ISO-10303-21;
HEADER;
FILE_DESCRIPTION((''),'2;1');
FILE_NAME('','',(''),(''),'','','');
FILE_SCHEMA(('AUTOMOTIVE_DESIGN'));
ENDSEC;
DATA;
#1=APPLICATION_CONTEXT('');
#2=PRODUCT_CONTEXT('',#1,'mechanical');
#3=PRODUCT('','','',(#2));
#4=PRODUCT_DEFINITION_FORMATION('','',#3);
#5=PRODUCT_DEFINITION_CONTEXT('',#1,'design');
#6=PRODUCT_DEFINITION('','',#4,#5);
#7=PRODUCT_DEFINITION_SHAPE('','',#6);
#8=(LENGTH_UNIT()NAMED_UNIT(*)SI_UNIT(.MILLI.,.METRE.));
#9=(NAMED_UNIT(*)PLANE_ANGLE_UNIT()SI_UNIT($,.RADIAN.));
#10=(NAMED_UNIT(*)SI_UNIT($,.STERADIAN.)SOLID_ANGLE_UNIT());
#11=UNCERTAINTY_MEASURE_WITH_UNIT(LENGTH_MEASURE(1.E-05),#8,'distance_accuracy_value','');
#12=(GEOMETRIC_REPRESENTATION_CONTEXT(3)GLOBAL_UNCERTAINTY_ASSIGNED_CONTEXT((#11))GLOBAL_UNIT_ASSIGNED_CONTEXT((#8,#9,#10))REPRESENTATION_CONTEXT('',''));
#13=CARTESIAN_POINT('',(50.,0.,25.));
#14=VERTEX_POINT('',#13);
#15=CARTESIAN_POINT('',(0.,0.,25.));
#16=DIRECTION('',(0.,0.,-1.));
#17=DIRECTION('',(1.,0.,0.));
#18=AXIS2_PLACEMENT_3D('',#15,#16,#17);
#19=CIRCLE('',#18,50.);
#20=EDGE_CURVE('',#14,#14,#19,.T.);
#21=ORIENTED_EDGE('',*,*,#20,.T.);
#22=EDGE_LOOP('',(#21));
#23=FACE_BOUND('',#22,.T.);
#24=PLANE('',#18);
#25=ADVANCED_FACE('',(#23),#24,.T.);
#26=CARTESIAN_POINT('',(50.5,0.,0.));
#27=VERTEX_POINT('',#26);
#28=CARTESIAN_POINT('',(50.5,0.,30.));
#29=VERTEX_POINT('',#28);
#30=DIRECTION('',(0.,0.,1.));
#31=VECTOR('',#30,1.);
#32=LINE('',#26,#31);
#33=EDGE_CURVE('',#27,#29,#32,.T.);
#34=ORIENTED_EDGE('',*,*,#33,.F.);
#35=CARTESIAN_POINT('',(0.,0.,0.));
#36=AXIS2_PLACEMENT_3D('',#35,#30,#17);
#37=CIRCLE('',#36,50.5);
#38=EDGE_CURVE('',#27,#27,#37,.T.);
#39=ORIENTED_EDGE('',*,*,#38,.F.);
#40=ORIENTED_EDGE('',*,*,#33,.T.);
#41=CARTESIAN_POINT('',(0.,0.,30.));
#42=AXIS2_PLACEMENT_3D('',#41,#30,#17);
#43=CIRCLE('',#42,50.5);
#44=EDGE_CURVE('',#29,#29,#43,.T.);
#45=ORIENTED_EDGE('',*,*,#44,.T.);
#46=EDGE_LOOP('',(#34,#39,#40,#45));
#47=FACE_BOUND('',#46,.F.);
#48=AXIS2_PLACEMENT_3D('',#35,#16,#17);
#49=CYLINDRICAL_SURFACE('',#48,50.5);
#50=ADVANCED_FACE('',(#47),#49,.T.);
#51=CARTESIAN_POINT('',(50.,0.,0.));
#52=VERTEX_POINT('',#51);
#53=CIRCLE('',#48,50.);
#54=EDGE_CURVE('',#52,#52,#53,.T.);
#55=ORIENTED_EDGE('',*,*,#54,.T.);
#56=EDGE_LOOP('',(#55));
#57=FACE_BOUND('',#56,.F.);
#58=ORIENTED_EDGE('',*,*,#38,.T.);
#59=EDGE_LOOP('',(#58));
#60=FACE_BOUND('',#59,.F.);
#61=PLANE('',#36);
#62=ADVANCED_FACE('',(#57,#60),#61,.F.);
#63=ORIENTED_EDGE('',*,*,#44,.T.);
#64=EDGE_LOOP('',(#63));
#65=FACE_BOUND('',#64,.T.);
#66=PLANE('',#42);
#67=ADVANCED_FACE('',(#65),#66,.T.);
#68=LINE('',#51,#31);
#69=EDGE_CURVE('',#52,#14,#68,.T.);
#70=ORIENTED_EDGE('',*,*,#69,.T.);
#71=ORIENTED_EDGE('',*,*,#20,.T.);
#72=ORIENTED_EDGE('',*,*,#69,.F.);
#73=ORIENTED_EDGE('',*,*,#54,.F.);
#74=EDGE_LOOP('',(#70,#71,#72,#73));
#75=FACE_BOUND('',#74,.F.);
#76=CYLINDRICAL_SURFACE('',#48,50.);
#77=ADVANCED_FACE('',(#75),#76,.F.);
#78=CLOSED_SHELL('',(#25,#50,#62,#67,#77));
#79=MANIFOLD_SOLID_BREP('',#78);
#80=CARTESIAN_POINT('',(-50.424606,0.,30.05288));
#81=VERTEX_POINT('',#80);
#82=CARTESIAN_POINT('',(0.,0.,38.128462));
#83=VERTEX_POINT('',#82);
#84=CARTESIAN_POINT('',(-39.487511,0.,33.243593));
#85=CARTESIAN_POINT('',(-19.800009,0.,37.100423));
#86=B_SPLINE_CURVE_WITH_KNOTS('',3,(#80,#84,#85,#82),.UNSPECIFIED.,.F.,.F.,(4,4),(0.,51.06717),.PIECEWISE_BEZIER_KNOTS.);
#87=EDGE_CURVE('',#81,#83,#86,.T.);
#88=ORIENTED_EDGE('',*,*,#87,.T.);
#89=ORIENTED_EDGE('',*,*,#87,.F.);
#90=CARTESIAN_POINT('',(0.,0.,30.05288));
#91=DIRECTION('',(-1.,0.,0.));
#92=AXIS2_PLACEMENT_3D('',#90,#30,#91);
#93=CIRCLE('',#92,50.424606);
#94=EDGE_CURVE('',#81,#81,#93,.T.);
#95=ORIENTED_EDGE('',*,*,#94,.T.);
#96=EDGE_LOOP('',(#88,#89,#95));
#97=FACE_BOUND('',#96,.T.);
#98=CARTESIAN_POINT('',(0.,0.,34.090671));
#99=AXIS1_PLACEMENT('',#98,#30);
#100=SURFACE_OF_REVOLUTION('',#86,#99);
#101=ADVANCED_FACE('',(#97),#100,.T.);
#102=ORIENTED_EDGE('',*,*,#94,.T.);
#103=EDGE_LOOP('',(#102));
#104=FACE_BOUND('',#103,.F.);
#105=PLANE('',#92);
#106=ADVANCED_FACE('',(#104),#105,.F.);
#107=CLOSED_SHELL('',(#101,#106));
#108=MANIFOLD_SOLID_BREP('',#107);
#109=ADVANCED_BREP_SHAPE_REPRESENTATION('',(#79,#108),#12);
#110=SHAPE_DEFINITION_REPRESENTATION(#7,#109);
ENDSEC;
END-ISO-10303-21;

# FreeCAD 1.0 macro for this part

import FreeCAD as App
import Part
import Sketcher
from FreeCAD import Vector

doc = App.newDocument("Part")
params = doc.addObject("Spreadsheet::Sheet", "Params")
for row, (alias, value) in enumerate([
    ("sketch1_diameter", "101 mm"),
    ("pad1_length", "30 mm"),
    ("sketch2_diameter", "100 mm"),
    ("pocket1_length", "25 mm"),
    ("revolution_angle", "360 deg"),
], start=1):
    params.set(f"A{row}", alias)
    params.set(f"B{row}", "=" + value)
    params.setAlias(f"B{row}", alias)

body = doc.addObject("PartDesign::Body", "Body")

# Sketch on XY plane
sketch1 = body.newObject("Sketcher::SketchObject", "Sketch")
sketch1.AttachmentSupport = (doc.getObject("XY_Plane"), [""])
sketch1.MapMode = "FlatFace"
sketch1.addGeometry(Part.Circle(Vector(0, 0, 0), Vector(0, 0, 1), 50), False)
sketch1.addConstraint(Sketcher.Constraint("Coincident", 0, 3, -1, 1))
sketch1.addConstraint(Sketcher.Constraint("Diameter", 0, 101.0))
sketch1.setExpression("Constraints[1]", "Params.sketch1_diameter")
pad1 = body.newObject("PartDesign::Pad", "Pad")
pad1.Profile = sketch1
pad1.setExpression("Length", "Params.pad1_length")

# Sketch on XY plane
sketch2 = body.newObject("Sketcher::SketchObject", "Sketch001")
sketch2.AttachmentSupport = (doc.getObject("XY_Plane"), [""])
sketch2.MapMode = "FlatFace"
sketch2.addGeometry(Part.Circle(Vector(0, 0, 0), Vector(0, 0, 1), 50), False)
sketch2.addConstraint(Sketcher.Constraint("Coincident", 0, 3, -1, 1))
sketch2.addConstraint(Sketcher.Constraint("Diameter", 0, 100.0))
sketch2.setExpression("Constraints[1]", "Params.sketch2_diameter")
pocket1 = body.newObject("PartDesign::Pocket", "Pocket")
pocket1.Profile = sketch2
pocket1.setExpression("Length", "Params.pocket1_length")
pocket1.Reversed = True
body2 = doc.addObject("PartDesign::Body", "Body001")

# Sketch on XZ plane
sketch3 = body2.newObject("Sketcher::SketchObject", "Sketch002")
sketch3.AttachmentSupport = (doc.getObject("XZ_Plane001"), [""])
sketch3.MapMode = "FlatFace"
sketch3.addGeometry(Part.BSplineCurve([Vector(-50.424606, 30.05288, 0), Vector(-39.487511, 33.243593, 0), Vector(-19.800009, 37.100423, 0), Vector(0, 38.128462, 0)], [4, 4], [0, 51.06717], False, 3, [1, 1, 1, 1], False), False)
sketch3.addGeometry(Part.LineSegment(Vector(-50.424606, 30.05288, 0), Vector(0, 30.05288, 0)), False)
sketch3.addGeometry(Part.LineSegment(Vector(0, 30.05288, 0), Vector(0, 38.128462, 0)), False)
sketch3.addConstraint(Sketcher.Constraint("Block", 0))
sketch3.addConstraint(Sketcher.Constraint("Coincident", 0, 1, 1, 1))
sketch3.addConstraint(Sketcher.Constraint("Coincident", 1, 2, 2, 1))
sketch3.addConstraint(Sketcher.Constraint("Coincident", 2, 2, 0, 2))
sketch3.addConstraint(Sketcher.Constraint("Horizontal", 1))
sketch3.addConstraint(Sketcher.Constraint("Vertical", 2))
revolution = body2.newObject("PartDesign::Revolution", "Revolution")
revolution.Profile = sketch3
revolution.ReferenceAxis = (sketch3, ["V_Axis"])
revolution.setExpression("Angle", "Params.revolution_angle")

doc.recompute()
